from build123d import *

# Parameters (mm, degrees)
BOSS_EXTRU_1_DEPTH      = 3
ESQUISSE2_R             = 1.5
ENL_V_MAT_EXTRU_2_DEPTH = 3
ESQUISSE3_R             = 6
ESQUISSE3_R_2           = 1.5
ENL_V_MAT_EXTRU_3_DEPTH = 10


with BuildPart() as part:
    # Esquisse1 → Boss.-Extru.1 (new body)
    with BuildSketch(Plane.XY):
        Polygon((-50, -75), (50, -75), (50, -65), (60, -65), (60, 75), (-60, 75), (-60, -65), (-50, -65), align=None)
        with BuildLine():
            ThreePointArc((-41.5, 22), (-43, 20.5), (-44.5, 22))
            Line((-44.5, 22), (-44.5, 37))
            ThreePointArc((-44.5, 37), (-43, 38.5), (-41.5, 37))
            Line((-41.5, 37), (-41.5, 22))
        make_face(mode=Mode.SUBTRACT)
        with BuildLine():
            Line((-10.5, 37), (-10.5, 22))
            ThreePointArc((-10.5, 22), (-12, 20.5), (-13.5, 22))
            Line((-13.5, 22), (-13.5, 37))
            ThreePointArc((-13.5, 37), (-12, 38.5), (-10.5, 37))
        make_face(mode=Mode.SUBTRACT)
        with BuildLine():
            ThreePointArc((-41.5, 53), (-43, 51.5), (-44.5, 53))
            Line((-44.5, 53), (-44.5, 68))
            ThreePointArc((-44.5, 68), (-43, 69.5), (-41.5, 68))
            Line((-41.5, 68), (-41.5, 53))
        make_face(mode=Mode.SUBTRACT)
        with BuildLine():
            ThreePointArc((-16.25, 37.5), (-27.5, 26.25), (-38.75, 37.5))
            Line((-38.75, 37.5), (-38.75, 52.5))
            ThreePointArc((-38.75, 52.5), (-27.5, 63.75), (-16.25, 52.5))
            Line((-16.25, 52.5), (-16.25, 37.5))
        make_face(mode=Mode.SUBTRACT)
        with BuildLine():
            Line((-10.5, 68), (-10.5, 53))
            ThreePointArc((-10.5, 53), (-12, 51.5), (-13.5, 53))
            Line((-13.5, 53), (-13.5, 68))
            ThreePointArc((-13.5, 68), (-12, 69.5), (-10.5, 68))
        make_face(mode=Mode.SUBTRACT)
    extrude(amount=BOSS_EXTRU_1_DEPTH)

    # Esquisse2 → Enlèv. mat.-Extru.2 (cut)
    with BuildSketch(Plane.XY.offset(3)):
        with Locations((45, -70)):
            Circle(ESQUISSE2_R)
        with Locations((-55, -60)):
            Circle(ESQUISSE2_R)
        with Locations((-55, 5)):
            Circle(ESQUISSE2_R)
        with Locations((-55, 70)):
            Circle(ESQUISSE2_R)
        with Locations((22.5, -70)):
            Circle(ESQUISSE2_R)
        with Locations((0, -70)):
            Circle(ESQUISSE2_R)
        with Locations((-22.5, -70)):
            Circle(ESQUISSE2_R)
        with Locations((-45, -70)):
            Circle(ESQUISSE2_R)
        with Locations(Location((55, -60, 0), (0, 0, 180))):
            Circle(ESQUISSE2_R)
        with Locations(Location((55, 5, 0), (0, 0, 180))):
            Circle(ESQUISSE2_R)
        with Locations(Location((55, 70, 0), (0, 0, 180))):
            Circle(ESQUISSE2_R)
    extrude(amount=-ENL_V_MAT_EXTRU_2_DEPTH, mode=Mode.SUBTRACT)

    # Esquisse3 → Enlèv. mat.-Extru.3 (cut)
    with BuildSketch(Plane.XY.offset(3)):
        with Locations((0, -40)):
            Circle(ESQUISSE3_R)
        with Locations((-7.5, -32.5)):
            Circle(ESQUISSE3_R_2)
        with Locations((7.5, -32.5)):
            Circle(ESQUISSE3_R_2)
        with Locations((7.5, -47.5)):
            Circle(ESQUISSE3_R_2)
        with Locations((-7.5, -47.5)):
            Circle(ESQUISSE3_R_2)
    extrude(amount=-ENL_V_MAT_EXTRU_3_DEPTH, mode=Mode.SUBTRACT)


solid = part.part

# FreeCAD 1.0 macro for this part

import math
import FreeCAD as App
import Part
import Sketcher

V = App.Vector
Q = App.Units.Quantity


def add_polygon(sketch, points):
    """Adds a closed chain of lines whose ends are joined by coincident constraints."""
    first, n = sketch.GeometryCount, len(points)
    for a, b in zip(points, points[1:] + points[:1]):
        sketch.addGeometry(Part.LineSegment(App.Vector(*a, 0), App.Vector(*b, 0)), False)
    for i in range(n):
        sketch.addConstraint(Sketcher.Constraint("Coincident", first + i, 2, first + (i + 1) % n, 1))

doc = App.newDocument("Part")
params = doc.addObject("Spreadsheet::Sheet", "Params")
for row, (alias, value) in enumerate([
    ("sketch1_radius", "1.5 mm"),
    ("sketch1_width", "100 mm"),
    ("sketch1_width2", "10 mm"),
    ("sketch1_height", "140 mm"),
    ("sketch1_height2", "15 mm"),
    ("pad1_length", "3 mm"),
    ("sketch2_diameter", "3 mm"),
    ("pocket1_length", "3 mm"),
    ("sketch3_diameter", "12 mm"),
    ("sketch3_diameter2", "3 mm"),
    ("pocket2_length", "10 mm"),
], start=1):
    params.set(f"A{row}", alias)
    params.set(f"B{row}", "=" + value)
    params.setAlias(f"B{row}", alias)

body = doc.addObject("PartDesign::Body", "Body")

sketch1 = body.newObject("Sketcher::SketchObject", "Sketch")
sketch1.AttachmentSupport = (doc.getObject("XY_Plane"), [""])
sketch1.MapMode = "FlatFace"
add_polygon(sketch1, [(-50, -75), (50, -75), (50, -65), (60, -65), (60, 75), (-60, 75), (-60, -65), (-50, -65)])
sketch1.addGeometry(Part.LineSegment(V(-41.5, 37, 0), V(-41.5, 22, 0)), False)
sketch1.addGeometry(Part.ArcOfCircle(Part.Circle(V(-43, 22, 0), V(0, 0, 1), 1.5), math.radians(180), math.radians(360)), False)
sketch1.addGeometry(Part.LineSegment(V(-44.5, 22, 0), V(-44.5, 37, 0)), False)
sketch1.addGeometry(Part.ArcOfCircle(Part.Circle(V(-43, 37, 0), V(0, 0, 1), 1.5), math.radians(0), math.radians(180)), False)
sketch1.addGeometry(Part.ArcOfCircle(Part.Circle(V(-12, 37, 0), V(0, 0, 1), 1.5), math.radians(0), math.radians(180)), False)
sketch1.addGeometry(Part.LineSegment(V(-10.5, 37, 0), V(-10.5, 22, 0)), False)
sketch1.addGeometry(Part.ArcOfCircle(Part.Circle(V(-12, 22, 0), V(0, 0, 1), 1.5), math.radians(180), math.radians(360)), False)
sketch1.addGeometry(Part.LineSegment(V(-13.5, 22, 0), V(-13.5, 37, 0)), False)
sketch1.addGeometry(Part.LineSegment(V(-16.25, 52.5, 0), V(-16.25, 37.5, 0)), False)
sketch1.addGeometry(Part.ArcOfCircle(Part.Circle(V(-27.5, 37.5, 0), V(0, 0, 1), 11.25), math.radians(180), math.radians(360)), False)
sketch1.addGeometry(Part.LineSegment(V(-38.75, 37.5, 0), V(-38.75, 52.5, 0)), False)
sketch1.addGeometry(Part.ArcOfCircle(Part.Circle(V(-27.5, 52.5, 0), V(0, 0, 1), 11.25), math.radians(0), math.radians(180)), False)
sketch1.addGeometry(Part.LineSegment(V(-41.5, 68, 0), V(-41.5, 53, 0)), False)
sketch1.addGeometry(Part.ArcOfCircle(Part.Circle(V(-43, 53, 0), V(0, 0, 1), 1.5), math.radians(180), math.radians(360)), False)
sketch1.addGeometry(Part.LineSegment(V(-44.5, 53, 0), V(-44.5, 68, 0)), False)
sketch1.addGeometry(Part.ArcOfCircle(Part.Circle(V(-43, 68, 0), V(0, 0, 1), 1.5), math.radians(0), math.radians(180)), False)
sketch1.addGeometry(Part.ArcOfCircle(Part.Circle(V(-12, 68, 0), V(0, 0, 1), 1.5), math.radians(0), math.radians(180)), False)
sketch1.addGeometry(Part.LineSegment(V(-10.5, 68, 0), V(-10.5, 53, 0)), False)
sketch1.addGeometry(Part.ArcOfCircle(Part.Circle(V(-12, 53, 0), V(0, 0, 1), 1.5), math.radians(180), math.radians(360)), False)
sketch1.addGeometry(Part.LineSegment(V(-13.5, 53, 0), V(-13.5, 68, 0)), False)
sketch1.addConstraint([
    Sketcher.Constraint("Tangent", 8, 2, 9, 2),
    Sketcher.Constraint("Tangent", 9, 1, 10, 1),
    Sketcher.Constraint("Tangent", 10, 2, 11, 2),
    Sketcher.Constraint("Tangent", 11, 1, 8, 1),
    Sketcher.Constraint("Tangent", 12, 1, 13, 1),
    Sketcher.Constraint("Tangent", 13, 2, 14, 2),
    Sketcher.Constraint("Tangent", 14, 1, 15, 1),
    Sketcher.Constraint("Tangent", 15, 2, 12, 2),
    Sketcher.Constraint("Tangent", 16, 2, 17, 2),
    Sketcher.Constraint("Tangent", 17, 1, 18, 1),
    Sketcher.Constraint("Tangent", 18, 2, 19, 2),
    Sketcher.Constraint("Tangent", 19, 1, 16, 1),
    Sketcher.Constraint("Tangent", 20, 2, 21, 2),
    Sketcher.Constraint("Tangent", 21, 1, 22, 1),
    Sketcher.Constraint("Tangent", 22, 2, 23, 2),
    Sketcher.Constraint("Tangent", 23, 1, 20, 1),
    Sketcher.Constraint("Tangent", 24, 1, 25, 1),
    Sketcher.Constraint("Tangent", 25, 2, 26, 2),
    Sketcher.Constraint("Tangent", 26, 1, 27, 1),
    Sketcher.Constraint("Tangent", 27, 2, 24, 2),
    Sketcher.Constraint("Horizontal", 0),
    Sketcher.Constraint("Vertical", 1),
    Sketcher.Constraint("Horizontal", 2),
    Sketcher.Constraint("Vertical", 3),
    Sketcher.Constraint("Horizontal", 4),
    Sketcher.Constraint("Vertical", 5),
    Sketcher.Constraint("Horizontal", 6),
    Sketcher.Constraint("Vertical", 7),
    Sketcher.Constraint("Vertical", 8),
    Sketcher.Constraint("Vertical", 10),
    Sketcher.Constraint("Vertical", 13),
    Sketcher.Constraint("Vertical", 15),
    Sketcher.Constraint("Vertical", 16),
    Sketcher.Constraint("Vertical", 18),
    Sketcher.Constraint("Vertical", 20),
    Sketcher.Constraint("Vertical", 22),
    Sketcher.Constraint("Vertical", 25),
    Sketcher.Constraint("Vertical", 27),
    Sketcher.Constraint("Equal", 11, 12),
    Sketcher.Constraint("Equal", 14, 21),
    Sketcher.Constraint("Equal", 23, 24),
    Sketcher.Constraint("Symmetric", 2, 2, 5, 2, -2),
    Sketcher.Constraint("Horizontal", 11, 3, 12, 3),
    Sketcher.Constraint("Horizontal", 9, 3, 14, 3),
    Sketcher.Constraint("Horizontal", 23, 3, 24, 3),
    Sketcher.Constraint("Horizontal", 21, 3, 26, 3),
    Sketcher.Constraint("Vertical", 11, 3, 21, 3),
    Sketcher.Constraint("Vertical", 14, 3, 24, 3),
    Sketcher.Constraint("Equal", 2, 6),
    Sketcher.Constraint("Equal", 6, 1),
    Sketcher.Constraint("Equal", 15, 16),
    Sketcher.Constraint("Equal", 18, 20),
    Sketcher.Constraint("Radius", 9, Q("1.5 mm")),
    Sketcher.Constraint("DistanceX", 0, 1, 0, 2, Q("100 mm")),
    Sketcher.Constraint("DistanceX", 2, 1, 2, 2, Q("10 mm")),
    Sketcher.Constraint("DistanceY", 3, 1, 3, 2, Q("140 mm")),
    Sketcher.Constraint("DistanceY", 8, 2, 8, 1, Q("15 mm")),
    Sketcher.Constraint("Radius", 17, Q("11.25 mm")),
    Sketcher.Constraint("DistanceX", 9, 3, -1, 1, Q("43 mm")),
    Sketcher.Constraint("DistanceY", -1, 1, 9, 3, Q("22 mm")),
    Sketcher.Constraint("DistanceX", 12, 3, -1, 1, Q("12 mm")),
    Sketcher.Constraint("DistanceY", -1, 1, 21, 3, Q("53 mm")),
    Sketcher.Constraint("DistanceY", 0, 2, -1, 1, Q("75 mm")),
    Sketcher.Constraint("DistanceX", 8, 2, 17, 3, Q("14 mm")),
    Sketcher.Constraint("DistanceY", -1, 1, 17, 3, Q("37.5 mm")),
])
sketch1.setExpression("Constraints[60]", "Params.sketch1_radius")
sketch1.setExpression("Constraints[61]", "Params.sketch1_width")
sketch1.setExpression("Constraints[62]", "Params.sketch1_width2")
sketch1.setExpression("Constraints[63]", "Params.sketch1_height")
sketch1.setExpression("Constraints[64]", "Params.sketch1_height2")
pad1 = body.newObject("PartDesign::Pad", "Pad")
pad1.Profile = sketch1
pad1.setExpression("Length", "Params.pad1_length")

sketch2 = body.newObject("Sketcher::SketchObject", "Sketch001")
sketch2.AttachmentSupport = (doc.getObject("XY_Plane"), [""])
sketch2.MapMode = "FlatFace"
sketch2.AttachmentOffset = App.Placement(V(0, 0, 3), App.Rotation())
sketch2.addGeometry([
    Part.Circle(V(45, -70, 0), V(0, 0, 1), 1.5),
    Part.Circle(V(-55, -60, 0), V(0, 0, 1), 1.5),
    Part.Circle(V(-55, 5, 0), V(0, 0, 1), 1.5),
    Part.Circle(V(-55, 70, 0), V(0, 0, 1), 1.5),
    Part.Circle(V(22.5, -70, 0), V(0, 0, 1), 1.5),
    Part.Circle(V(0, -70, 0), V(0, 0, 1), 1.5),
    Part.Circle(V(-22.5, -70, 0), V(0, 0, 1), 1.5),
    Part.Circle(V(-45, -70, 0), V(0, 0, 1), 1.5),
    Part.Circle(V(55, -60, 0), V(0, 0, 1), 1.5),
    Part.Circle(V(55, 5, 0), V(0, 0, 1), 1.5),
    Part.Circle(V(55, 70, 0), V(0, 0, 1), 1.5),
], False)
sketch2.addConstraint([
    Sketcher.Constraint("Equal", 0, 1),
    Sketcher.Constraint("Equal", 1, 2),
    Sketcher.Constraint("Equal", 2, 3),
    Sketcher.Constraint("Equal", 3, 4),
    Sketcher.Constraint("Equal", 4, 5),
    Sketcher.Constraint("Equal", 5, 6),
    Sketcher.Constraint("Equal", 6, 7),
    Sketcher.Constraint("Equal", 7, 8),
    Sketcher.Constraint("Equal", 8, 9),
    Sketcher.Constraint("Equal", 9, 10),
    Sketcher.Constraint("Symmetric", 4, 3, 6, 3, -2),
    Sketcher.Constraint("Symmetric", 0, 3, 7, 3, -2),
    Sketcher.Constraint("Symmetric", 1, 3, 8, 3, -2),
    Sketcher.Constraint("Symmetric", 2, 3, 9, 3, -2),
    Sketcher.Constraint("Symmetric", 3, 3, 10, 3, -2),
    Sketcher.Constraint("PointOnObject", 5, 3, -2),
    Sketcher.Constraint("Horizontal", 0, 3, 4, 3),
    Sketcher.Constraint("Horizontal", 4, 3, 5, 3),
    Sketcher.Constraint("Vertical", 1, 3, 2, 3),
    Sketcher.Constraint("Vertical", 2, 3, 3, 3),
    Sketcher.Constraint("Diameter", 0, Q("3 mm")),
    Sketcher.Constraint("DistanceX", -1, 1, 0, 3, Q("45 mm")),
    Sketcher.Constraint("DistanceY", 0, 3, -1, 1, Q("70 mm")),
    Sketcher.Constraint("DistanceX", 1, 3, -1, 1, Q("55 mm")),
    Sketcher.Constraint("DistanceY", 1, 3, -1, 1, Q("60 mm")),
    Sketcher.Constraint("DistanceY", -1, 1, 2, 3, Q("5 mm")),
    Sketcher.Constraint("DistanceY", -1, 1, 3, 3, Q("70 mm")),
    Sketcher.Constraint("DistanceX", 6, 3, 4, 3, Q("45 mm")),
])
sketch2.setExpression("Constraints[20]", "Params.sketch2_diameter")
pocket1 = body.newObject("PartDesign::Pocket", "Pocket")
pocket1.Profile = sketch2
pocket1.setExpression("Length", "Params.pocket1_length")

sketch3 = body.newObject("Sketcher::SketchObject", "Sketch002")
sketch3.AttachmentSupport = (doc.getObject("XY_Plane"), [""])
sketch3.MapMode = "FlatFace"
sketch3.AttachmentOffset = App.Placement(V(0, 0, 3), App.Rotation())
sketch3.addGeometry([
    Part.Circle(V(0, -40, 0), V(0, 0, 1), 6),
    Part.Circle(V(-7.5, -32.5, 0), V(0, 0, 1), 1.5),
    Part.Circle(V(7.5, -32.5, 0), V(0, 0, 1), 1.5),
    Part.Circle(V(7.5, -47.5, 0), V(0, 0, 1), 1.5),
    Part.Circle(V(-7.5, -47.5, 0), V(0, 0, 1), 1.5),
], False)
sketch3.addConstraint([
    Sketcher.Constraint("Equal", 1, 2),
    Sketcher.Constraint("Equal", 2, 3),
    Sketcher.Constraint("Equal", 3, 4),
    Sketcher.Constraint("Symmetric", 1, 3, 2, 3, -2),
    Sketcher.Constraint("Symmetric", 3, 3, 4, 3, -2),
    Sketcher.Constraint("PointOnObject", 0, 3, -2),
    Sketcher.Constraint("Vertical", 2, 3, 3, 3),
    Sketcher.Constraint("Diameter", 0, Q("12 mm")),
    Sketcher.Constraint("Diameter", 1, Q("3 mm")),
    Sketcher.Constraint("DistanceY", 0, 3, -1, 1, Q("40 mm")),
    Sketcher.Constraint("DistanceX", 1, 3, 2, 3, Q("15 mm")),
    Sketcher.Constraint("DistanceY", 3, 3, 2, 3, Q("15 mm")),
    Sketcher.Constraint("DistanceY", 1, 3, -1, 1, Q("32.5 mm")),
])
sketch3.setExpression("Constraints[7]", "Params.sketch3_diameter")
sketch3.setExpression("Constraints[8]", "Params.sketch3_diameter2")
pocket2 = body.newObject("PartDesign::Pocket", "Pocket001")
pocket2.Profile = sketch3
pocket2.setExpression("Length", "Params.pocket2_length")

doc.recompute()
